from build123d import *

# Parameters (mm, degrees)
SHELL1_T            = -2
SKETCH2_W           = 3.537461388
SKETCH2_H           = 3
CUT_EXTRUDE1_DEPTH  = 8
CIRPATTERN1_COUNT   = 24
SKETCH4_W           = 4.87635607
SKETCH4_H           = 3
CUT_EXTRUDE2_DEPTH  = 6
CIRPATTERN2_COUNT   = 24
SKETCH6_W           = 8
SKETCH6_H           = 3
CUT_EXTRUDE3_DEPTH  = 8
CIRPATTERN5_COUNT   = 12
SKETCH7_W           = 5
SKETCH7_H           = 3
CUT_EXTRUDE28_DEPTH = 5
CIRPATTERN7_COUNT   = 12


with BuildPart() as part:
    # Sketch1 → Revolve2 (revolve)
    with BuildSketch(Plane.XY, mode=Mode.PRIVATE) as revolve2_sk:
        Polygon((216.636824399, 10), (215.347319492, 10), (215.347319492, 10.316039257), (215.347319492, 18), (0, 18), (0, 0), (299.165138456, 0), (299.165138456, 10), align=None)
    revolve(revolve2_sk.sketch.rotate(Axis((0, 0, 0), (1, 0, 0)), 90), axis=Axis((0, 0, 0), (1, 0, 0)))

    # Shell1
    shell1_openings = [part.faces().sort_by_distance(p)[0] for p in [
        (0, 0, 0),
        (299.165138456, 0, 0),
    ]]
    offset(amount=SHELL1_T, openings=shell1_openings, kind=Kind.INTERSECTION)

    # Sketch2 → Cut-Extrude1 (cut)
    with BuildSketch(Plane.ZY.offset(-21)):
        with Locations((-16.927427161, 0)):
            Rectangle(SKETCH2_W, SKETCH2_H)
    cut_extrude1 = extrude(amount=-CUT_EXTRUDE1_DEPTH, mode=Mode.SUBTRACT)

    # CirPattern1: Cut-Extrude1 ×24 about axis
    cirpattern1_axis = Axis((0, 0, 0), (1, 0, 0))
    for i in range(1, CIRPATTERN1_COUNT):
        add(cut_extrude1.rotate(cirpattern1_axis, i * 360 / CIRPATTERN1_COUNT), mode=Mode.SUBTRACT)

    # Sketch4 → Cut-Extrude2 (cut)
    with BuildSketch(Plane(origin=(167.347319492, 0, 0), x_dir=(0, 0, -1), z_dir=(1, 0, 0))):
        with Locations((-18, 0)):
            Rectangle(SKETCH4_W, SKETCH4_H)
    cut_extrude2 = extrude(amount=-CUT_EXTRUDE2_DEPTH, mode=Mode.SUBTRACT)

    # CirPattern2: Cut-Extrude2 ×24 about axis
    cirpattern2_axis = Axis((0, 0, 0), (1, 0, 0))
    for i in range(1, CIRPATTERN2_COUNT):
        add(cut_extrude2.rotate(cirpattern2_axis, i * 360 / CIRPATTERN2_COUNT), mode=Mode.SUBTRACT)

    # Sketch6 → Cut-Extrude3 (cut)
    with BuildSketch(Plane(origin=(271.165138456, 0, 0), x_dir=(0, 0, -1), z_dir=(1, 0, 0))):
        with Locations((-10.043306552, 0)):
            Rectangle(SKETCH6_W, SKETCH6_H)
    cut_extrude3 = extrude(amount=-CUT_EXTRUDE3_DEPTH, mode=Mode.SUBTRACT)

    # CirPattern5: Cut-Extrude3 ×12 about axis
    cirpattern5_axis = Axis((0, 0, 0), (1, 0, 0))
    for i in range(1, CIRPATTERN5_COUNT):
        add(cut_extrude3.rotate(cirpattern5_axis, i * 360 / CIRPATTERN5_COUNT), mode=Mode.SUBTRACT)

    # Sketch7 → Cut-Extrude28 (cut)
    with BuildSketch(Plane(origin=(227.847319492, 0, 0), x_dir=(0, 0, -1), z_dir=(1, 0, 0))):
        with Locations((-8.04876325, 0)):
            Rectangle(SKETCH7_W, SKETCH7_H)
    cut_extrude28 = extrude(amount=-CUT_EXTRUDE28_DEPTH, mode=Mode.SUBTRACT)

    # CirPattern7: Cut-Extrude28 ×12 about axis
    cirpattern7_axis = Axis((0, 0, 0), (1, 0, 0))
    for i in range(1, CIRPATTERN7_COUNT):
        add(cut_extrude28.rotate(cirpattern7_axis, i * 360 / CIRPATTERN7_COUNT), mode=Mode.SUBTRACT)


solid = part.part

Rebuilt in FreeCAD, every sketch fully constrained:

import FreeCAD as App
import Part
import Sketcher

V = App.Vector


def faces_at(feature, points):
    """Names of the faces that lie closest to the given points."""
    faces = feature.Shape.Faces
    near = lambda p: min(range(len(faces)), key=lambda i: faces[i].distToShape(Part.Vertex(*p))[0])
    return sorted({f"Face{near(p) + 1}" for p in points})


def add_polygon(sketch, points):
    """Adds a closed chain of lines whose ends are joined by coincident constraints."""
    first, n = sketch.GeometryCount, len(points)
    for a, b in zip(points, points[1:] + points[:1]):
        sketch.addGeometry(Part.LineSegment(App.Vector(*a, 0), App.Vector(*b, 0)), False)
    for i in range(n):
        sketch.addConstraint(Sketcher.Constraint("Coincident", first + i, 2, first + (i + 1) % n, 1))

doc = App.newDocument("Part")
body = doc.addObject("PartDesign::Body", "Body")

sketch1 = body.newObject("Sketcher::SketchObject", "Sketch")
sketch1.AttachmentSupport = (doc.getObject("XY_Plane"), [""])
sketch1.MapMode = "FlatFace"
add_polygon(sketch1, [(215.347319, 10), (215.347319, 18), (0, 18), (0, 0), (299.165138, 0), (299.165138, 10)])
sketch1.addConstraint([
    Sketcher.Constraint("Vertical", 0),
    Sketcher.Constraint("Horizontal", 1),
    Sketcher.Constraint("Vertical", 2),
    Sketcher.Constraint("Horizontal", 3),
    Sketcher.Constraint("Vertical", 4),
    Sketcher.Constraint("Horizontal", 5),
    Sketcher.Constraint("Coincident", 2, 2, -1, 1),
    Sketcher.Constraint("DistanceY", 0, 1, 0, 2, 8.0),
    Sketcher.Constraint("DistanceY", 2, 2, 2, 1, 18.0),
    Sketcher.Constraint("DistanceX", 1, 2, 1, 1, 215.347319),
    Sketcher.Constraint("DistanceX", 3, 1, 3, 2, 299.165138),
])
revolution = body.newObject("PartDesign::Revolution", "Revolution")
revolution.Profile = sketch1
revolution.ReferenceAxis = (sketch1, ["H_Axis"])
revolution.Angle = 360
doc.recompute()

thickness = body.newObject("PartDesign::Thickness", "Thickness")
thickness.Base = (revolution, faces_at(revolution, [(0, 0, 0), (299.165, 0, 0)]))
thickness.Value = 2
thickness.Reversed = True
thickness.Join = "Intersection"

sketch2 = body.newObject("Sketcher::SketchObject", "Sketch001")
sketch2.AttachmentSupport = (doc.getObject("YZ_Plane"), [""])
sketch2.MapMode = "FlatFace"
sketch2.AttachmentOffset = App.Placement(V(0, 0, 21), App.Rotation())
add_polygon(sketch2, [(1.5, -18.696158), (-1.5, -18.696158), (-1.5, -15.158696), (1.5, -15.158696)])
sketch2.addConstraint([
    Sketcher.Constraint("Horizontal", 0),
    Sketcher.Constraint("Vertical", 1),
    Sketcher.Constraint("Horizontal", 2),
    Sketcher.Constraint("Vertical", 3),
    Sketcher.Constraint("DistanceX", 0, 2, 0, 1, 3.0),
    Sketcher.Constraint("DistanceX", 0, 2, -1, 1, 1.5),
    Sketcher.Constraint("DistanceY", 1, 1, 1, 2, 3.537461),
    Sketcher.Constraint("DistanceY", 0, 2, -1, 1, 18.696158),
])
pocket1 = body.newObject("PartDesign::Pocket", "Pocket")
pocket1.Profile = sketch2
pocket1.Length = 8
pocket1.Reversed = True
doc.recompute()

polarpattern = body.newObject("PartDesign::PolarPattern", "PolarPattern")
polarpattern.Originals = [pocket1]
polarpattern.Axis = (doc.getObject("X_Axis"), [""])
polarpattern.Angle = 360
polarpattern.Occurrences = 24
body.Tip = polarpattern

sketch3 = body.newObject("Sketcher::SketchObject", "Sketch002")
sketch3.AttachmentSupport = (doc.getObject("YZ_Plane"), [""])
sketch3.MapMode = "FlatFace"
sketch3.AttachmentOffset = App.Placement(V(0, 0, 167.347319), App.Rotation())
add_polygon(sketch3, [(1.5, 20.438178), (-1.5, 20.438178), (-1.5, 15.561822), (1.5, 15.561822)])
sketch3.addConstraint([
    Sketcher.Constraint("Horizontal", 0),
    Sketcher.Constraint("Vertical", 1),
    Sketcher.Constraint("Horizontal", 2),
    Sketcher.Constraint("Vertical", 3),
    Sketcher.Constraint("DistanceX", 0, 2, 0, 1, 3.0),
    Sketcher.Constraint("DistanceX", 0, 2, -1, 1, 1.5),
    Sketcher.Constraint("DistanceY", 1, 2, 1, 1, 4.876356),
    Sketcher.Constraint("DistanceY", -1, 1, 0, 2, 20.438178),
])
pocket2 = body.newObject("PartDesign::Pocket", "Pocket001")
pocket2.Profile = sketch3
pocket2.Length = 6
doc.recompute()

polarpattern2 = body.newObject("PartDesign::PolarPattern", "PolarPattern001")
polarpattern2.Originals = [pocket2]
polarpattern2.Axis = (doc.getObject("X_Axis"), [""])
polarpattern2.Angle = 360
polarpattern2.Occurrences = 24
body.Tip = polarpattern2

sketch4 = body.newObject("Sketcher::SketchObject", "Sketch003")
sketch4.AttachmentSupport = (doc.getObject("YZ_Plane"), [""])
sketch4.MapMode = "FlatFace"
sketch4.AttachmentOffset = App.Placement(V(0, 0, 271.165138), App.Rotation())
add_polygon(sketch4, [(1.5, 14.043307), (-1.5, 14.043307), (-1.5, 6.043307), (1.5, 6.043307)])
sketch4.addConstraint([
    Sketcher.Constraint("Horizontal", 0),
    Sketcher.Constraint("Vertical", 1),
    Sketcher.Constraint("Horizontal", 2),
    Sketcher.Constraint("Vertical", 3),
    Sketcher.Constraint("DistanceX", 0, 2, 0, 1, 3.0),
    Sketcher.Constraint("DistanceY", 1, 2, 1, 1, 8.0),
    Sketcher.Constraint("DistanceX", 0, 2, -1, 1, 1.5),
    Sketcher.Constraint("DistanceY", -1, 1, 0, 2, 14.043307),
])
pocket3 = body.newObject("PartDesign::Pocket", "Pocket002")
pocket3.Profile = sketch4
pocket3.Length = 8
doc.recompute()

polarpattern3 = body.newObject("PartDesign::PolarPattern", "PolarPattern002")
polarpattern3.Originals = [pocket3]
polarpattern3.Axis = (doc.getObject("X_Axis"), [""])
polarpattern3.Angle = 360
polarpattern3.Occurrences = 12
body.Tip = polarpattern3

sketch5 = body.newObject("Sketcher::SketchObject", "Sketch004")
sketch5.AttachmentSupport = (doc.getObject("YZ_Plane"), [""])
sketch5.MapMode = "FlatFace"
sketch5.AttachmentOffset = App.Placement(V(0, 0, 227.847319), App.Rotation())
add_polygon(sketch5, [(1.5, 10.548763), (-1.5, 10.548763), (-1.5, 5.548763), (1.5, 5.548763)])
sketch5.addConstraint([
    Sketcher.Constraint("Horizontal", 0),
    Sketcher.Constraint("Vertical", 1),
    Sketcher.Constraint("Horizontal", 2),
    Sketcher.Constraint("Vertical", 3),
    Sketcher.Constraint("DistanceX", 0, 2, 0, 1, 3.0),
    Sketcher.Constraint("DistanceY", 1, 2, 1, 1, 5.0),
    Sketcher.Constraint("DistanceX", 0, 2, -1, 1, 1.5),
    Sketcher.Constraint("DistanceY", -1, 1, 0, 2, 10.548763),
])
pocket4 = body.newObject("PartDesign::Pocket", "Pocket003")
pocket4.Profile = sketch5
pocket4.Length = 5
doc.recompute()

polarpattern4 = body.newObject("PartDesign::PolarPattern", "PolarPattern003")
polarpattern4.Originals = [pocket4]
polarpattern4.Axis = (doc.getObject("X_Axis"), [""])
polarpattern4.Angle = 360
polarpattern4.Occurrences = 12
body.Tip = polarpattern4

doc.recompute()
